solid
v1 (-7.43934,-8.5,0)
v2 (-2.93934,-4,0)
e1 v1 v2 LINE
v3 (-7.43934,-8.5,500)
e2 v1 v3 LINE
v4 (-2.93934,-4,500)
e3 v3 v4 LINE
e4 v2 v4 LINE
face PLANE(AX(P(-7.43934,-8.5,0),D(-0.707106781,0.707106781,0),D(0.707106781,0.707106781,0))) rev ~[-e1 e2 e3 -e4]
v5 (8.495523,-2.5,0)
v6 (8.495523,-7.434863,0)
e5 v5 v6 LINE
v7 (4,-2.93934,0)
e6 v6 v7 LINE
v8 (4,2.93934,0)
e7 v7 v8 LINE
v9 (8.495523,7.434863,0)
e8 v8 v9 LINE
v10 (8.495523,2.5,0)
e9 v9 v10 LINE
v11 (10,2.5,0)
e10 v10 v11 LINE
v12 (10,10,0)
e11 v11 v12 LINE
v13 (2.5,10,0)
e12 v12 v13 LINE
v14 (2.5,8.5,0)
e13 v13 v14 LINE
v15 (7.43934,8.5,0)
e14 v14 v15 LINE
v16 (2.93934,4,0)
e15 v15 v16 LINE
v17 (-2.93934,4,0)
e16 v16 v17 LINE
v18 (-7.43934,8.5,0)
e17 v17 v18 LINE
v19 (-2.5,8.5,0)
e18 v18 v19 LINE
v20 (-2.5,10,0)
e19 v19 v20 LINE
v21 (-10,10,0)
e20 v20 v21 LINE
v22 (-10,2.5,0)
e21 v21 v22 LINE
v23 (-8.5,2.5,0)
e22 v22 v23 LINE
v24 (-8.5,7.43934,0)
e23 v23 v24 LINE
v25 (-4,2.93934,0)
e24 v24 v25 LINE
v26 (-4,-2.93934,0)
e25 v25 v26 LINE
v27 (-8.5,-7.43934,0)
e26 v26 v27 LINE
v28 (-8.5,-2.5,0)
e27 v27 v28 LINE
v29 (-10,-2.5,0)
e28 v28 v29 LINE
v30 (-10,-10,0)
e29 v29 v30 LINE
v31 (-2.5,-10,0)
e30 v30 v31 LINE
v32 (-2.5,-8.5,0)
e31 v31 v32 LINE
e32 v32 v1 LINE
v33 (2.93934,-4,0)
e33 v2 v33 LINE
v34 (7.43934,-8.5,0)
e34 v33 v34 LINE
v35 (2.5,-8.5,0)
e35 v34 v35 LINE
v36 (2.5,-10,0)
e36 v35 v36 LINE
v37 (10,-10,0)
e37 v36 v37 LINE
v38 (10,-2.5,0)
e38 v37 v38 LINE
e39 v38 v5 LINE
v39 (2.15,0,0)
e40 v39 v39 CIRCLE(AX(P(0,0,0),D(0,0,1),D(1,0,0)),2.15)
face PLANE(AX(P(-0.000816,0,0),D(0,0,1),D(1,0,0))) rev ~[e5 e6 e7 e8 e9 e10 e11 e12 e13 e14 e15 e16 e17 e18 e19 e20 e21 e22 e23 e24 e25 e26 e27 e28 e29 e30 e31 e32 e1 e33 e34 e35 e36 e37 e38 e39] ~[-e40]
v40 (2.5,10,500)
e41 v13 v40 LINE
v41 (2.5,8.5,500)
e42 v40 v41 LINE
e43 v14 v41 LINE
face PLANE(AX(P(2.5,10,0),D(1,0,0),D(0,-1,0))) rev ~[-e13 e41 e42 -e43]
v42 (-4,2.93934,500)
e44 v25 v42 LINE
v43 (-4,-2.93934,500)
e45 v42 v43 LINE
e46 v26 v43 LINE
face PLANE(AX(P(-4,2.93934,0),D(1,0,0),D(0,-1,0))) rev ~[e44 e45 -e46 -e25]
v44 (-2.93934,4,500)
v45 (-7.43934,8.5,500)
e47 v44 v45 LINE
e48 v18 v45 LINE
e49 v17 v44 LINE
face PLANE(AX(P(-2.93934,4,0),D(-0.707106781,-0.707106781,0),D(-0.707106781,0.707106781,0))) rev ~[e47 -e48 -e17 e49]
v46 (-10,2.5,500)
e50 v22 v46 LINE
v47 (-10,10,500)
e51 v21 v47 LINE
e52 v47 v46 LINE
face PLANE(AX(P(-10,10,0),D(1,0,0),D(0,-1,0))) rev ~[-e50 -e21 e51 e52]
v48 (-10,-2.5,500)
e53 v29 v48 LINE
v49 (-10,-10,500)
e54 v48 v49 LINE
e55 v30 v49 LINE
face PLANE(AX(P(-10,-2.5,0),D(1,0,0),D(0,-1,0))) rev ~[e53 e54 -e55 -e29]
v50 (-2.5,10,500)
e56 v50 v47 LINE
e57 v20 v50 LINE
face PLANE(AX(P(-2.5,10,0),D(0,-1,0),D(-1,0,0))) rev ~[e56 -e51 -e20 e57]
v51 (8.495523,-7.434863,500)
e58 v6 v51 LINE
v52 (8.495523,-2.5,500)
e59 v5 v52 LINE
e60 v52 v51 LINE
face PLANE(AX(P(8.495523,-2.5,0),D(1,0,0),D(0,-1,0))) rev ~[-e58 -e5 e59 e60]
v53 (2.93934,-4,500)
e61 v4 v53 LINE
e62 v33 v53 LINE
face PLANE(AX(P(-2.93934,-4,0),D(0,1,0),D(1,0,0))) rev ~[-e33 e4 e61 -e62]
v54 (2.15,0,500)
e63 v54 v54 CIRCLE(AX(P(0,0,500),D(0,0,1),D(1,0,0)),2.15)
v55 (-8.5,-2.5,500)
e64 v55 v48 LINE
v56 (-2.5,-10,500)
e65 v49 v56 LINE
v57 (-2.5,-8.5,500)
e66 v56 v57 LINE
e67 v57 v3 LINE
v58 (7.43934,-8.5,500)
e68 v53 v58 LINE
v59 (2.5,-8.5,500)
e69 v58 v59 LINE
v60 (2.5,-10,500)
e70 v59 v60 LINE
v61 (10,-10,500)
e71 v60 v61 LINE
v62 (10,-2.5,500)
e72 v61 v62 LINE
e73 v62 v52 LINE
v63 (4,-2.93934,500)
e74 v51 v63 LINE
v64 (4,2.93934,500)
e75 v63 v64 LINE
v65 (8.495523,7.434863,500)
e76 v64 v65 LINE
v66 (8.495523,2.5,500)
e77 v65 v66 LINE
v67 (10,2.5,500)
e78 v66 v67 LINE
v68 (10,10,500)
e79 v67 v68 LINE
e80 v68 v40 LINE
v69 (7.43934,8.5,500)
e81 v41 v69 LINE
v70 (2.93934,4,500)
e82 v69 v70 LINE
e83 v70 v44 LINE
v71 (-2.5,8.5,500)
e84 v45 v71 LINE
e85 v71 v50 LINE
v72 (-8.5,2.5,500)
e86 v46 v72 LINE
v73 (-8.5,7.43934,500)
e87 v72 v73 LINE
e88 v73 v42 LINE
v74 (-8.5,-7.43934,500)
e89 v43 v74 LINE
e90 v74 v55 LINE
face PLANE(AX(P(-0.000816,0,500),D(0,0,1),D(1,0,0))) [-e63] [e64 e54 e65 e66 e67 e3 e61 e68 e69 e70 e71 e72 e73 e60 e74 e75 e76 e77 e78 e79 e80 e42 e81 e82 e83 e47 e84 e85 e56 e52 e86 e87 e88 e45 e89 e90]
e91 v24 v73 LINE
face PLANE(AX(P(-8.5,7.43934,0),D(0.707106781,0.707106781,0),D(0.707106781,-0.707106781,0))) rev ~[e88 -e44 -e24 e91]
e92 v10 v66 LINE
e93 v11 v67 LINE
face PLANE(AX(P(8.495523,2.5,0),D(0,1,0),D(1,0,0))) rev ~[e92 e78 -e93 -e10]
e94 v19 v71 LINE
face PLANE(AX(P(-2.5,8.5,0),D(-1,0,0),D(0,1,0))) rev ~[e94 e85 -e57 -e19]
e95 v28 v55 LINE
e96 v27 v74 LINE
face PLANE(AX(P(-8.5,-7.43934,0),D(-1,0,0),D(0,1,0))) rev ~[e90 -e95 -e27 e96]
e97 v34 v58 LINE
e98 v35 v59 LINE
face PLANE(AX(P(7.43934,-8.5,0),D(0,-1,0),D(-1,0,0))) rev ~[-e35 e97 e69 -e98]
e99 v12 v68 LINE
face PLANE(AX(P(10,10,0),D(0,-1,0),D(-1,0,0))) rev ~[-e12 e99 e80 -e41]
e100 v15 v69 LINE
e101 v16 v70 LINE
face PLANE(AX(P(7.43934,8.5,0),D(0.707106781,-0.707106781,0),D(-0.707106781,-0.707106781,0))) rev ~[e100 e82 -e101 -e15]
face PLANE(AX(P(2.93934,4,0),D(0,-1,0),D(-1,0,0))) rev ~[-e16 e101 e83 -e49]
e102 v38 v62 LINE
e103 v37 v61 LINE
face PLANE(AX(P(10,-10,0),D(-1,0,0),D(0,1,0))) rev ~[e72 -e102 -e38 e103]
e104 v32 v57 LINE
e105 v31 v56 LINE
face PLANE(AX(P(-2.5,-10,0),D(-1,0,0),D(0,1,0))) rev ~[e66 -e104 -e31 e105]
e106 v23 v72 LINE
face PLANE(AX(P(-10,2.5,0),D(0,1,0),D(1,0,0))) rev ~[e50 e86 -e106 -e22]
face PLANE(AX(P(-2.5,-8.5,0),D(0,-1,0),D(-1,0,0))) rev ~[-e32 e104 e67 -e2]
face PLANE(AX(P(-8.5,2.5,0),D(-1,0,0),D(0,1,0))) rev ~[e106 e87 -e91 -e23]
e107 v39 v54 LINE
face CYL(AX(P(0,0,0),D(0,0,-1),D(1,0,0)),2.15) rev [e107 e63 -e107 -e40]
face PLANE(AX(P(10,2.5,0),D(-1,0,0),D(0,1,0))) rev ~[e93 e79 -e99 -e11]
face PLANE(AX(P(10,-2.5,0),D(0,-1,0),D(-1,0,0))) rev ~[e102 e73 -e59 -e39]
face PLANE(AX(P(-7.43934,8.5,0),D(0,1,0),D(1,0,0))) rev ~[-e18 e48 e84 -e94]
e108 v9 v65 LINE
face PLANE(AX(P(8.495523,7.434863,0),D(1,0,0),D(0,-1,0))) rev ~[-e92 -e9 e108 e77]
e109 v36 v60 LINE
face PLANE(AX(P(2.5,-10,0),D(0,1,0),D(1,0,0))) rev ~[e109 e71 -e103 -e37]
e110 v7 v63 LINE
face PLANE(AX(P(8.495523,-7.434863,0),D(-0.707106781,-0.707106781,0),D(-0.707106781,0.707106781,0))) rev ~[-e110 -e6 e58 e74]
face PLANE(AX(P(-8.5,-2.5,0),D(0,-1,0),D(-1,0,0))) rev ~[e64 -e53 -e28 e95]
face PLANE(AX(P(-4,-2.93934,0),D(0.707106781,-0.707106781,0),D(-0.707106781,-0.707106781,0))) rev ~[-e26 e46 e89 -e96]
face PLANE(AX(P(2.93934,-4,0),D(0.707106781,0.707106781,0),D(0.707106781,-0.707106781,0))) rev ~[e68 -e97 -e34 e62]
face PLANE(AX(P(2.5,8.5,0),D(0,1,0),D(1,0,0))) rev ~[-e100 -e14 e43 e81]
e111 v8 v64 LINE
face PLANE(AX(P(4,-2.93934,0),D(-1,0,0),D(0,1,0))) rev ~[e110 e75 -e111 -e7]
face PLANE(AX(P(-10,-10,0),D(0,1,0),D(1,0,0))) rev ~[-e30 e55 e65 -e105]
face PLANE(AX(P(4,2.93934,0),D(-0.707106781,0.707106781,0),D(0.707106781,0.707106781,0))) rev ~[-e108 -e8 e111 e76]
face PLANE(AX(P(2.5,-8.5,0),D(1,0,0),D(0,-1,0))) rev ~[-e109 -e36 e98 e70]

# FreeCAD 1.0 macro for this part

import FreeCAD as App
import Part
import Sketcher

V = App.Vector
Q = App.Units.Quantity

doc = App.newDocument("Part")
params = doc.addObject("Spreadsheet::Sheet", "Params")
for row, (alias, value) in enumerate([
    ("sketch1_diameter", "4.3 mm"),
    ("sketch1_width", "7.5 mm"),
    ("sketch1_width2", "1.5 mm"),
    ("pad1_length", "500 mm"),
], start=1):
    params.set(f"A{row}", alias)
    params.set(f"B{row}", "=" + value)
    params.setAlias(f"B{row}", alias)

body = doc.addObject("PartDesign::Body", "Body")

# Sketch on XY plane
sketch1 = body.newObject("Sketcher::SketchObject", "Sketch")
sketch1.AttachmentSupport = (doc.getObject("XY_Plane"), [""])
sketch1.MapMode = "FlatFace"
sketch1.addGeometry([
    Part.LineSegment(V(-10, -2.5, 0), V(-10, -10, 0)),  # 0
    Part.LineSegment(V(-10, -10, 0), V(-2.5, -10, 0)),  # 1
    Part.LineSegment(V(-2.5, -10, 0), V(-2.5, -8.5, 0)),  # 2
    Part.LineSegment(V(-2.5, -8.5, 0), V(-7.4, -8.5, 0)),  # 3
    Part.LineSegment(V(-7.4, -8.5, 0), V(-2.9, -4, 0)),  # 4
    Part.LineSegment(V(-2.9, -4, 0), V(2.9, -4, 0)),  # 5
    Part.LineSegment(V(2.9, -4, 0), V(7.4, -8.5, 0)),  # 6
    Part.LineSegment(V(7.4, -8.5, 0), V(2.5, -8.5, 0)),  # 7
    Part.LineSegment(V(2.5, -8.5, 0), V(2.5, -10, 0)),  # 8
    Part.LineSegment(V(2.5, -10, 0), V(10, -10, 0)),  # 9
    Part.LineSegment(V(10, -10, 0), V(10, -2.5, 0)),  # 10
    Part.LineSegment(V(10, -2.5, 0), V(8.5, -2.5, 0)),  # 11
    Part.LineSegment(V(8.5, -2.5, 0), V(8.5, -7.4, 0)),  # 12
    Part.LineSegment(V(8.5, -7.4, 0), V(4, -2.9, 0)),  # 13
    Part.LineSegment(V(4, -2.9, 0), V(4, 2.9, 0)),  # 14
    Part.LineSegment(V(4, 2.9, 0), V(8.5, 7.4, 0)),  # 15
    Part.LineSegment(V(8.5, 7.4, 0), V(8.5, 2.5, 0)),  # 16
    Part.LineSegment(V(8.5, 2.5, 0), V(10, 2.5, 0)),  # 17
    Part.LineSegment(V(10, 2.5, 0), V(10, 10, 0)),  # 18
    Part.LineSegment(V(10, 10, 0), V(2.5, 10, 0)),  # 19
    Part.LineSegment(V(2.5, 10, 0), V(2.5, 8.5, 0)),  # 20
    Part.LineSegment(V(2.5, 8.5, 0), V(7.4, 8.5, 0)),  # 21
    Part.LineSegment(V(7.4, 8.5, 0), V(2.9, 4, 0)),  # 22
    Part.LineSegment(V(2.9, 4, 0), V(-2.9, 4, 0)),  # 23
    Part.LineSegment(V(-2.9, 4, 0), V(-7.4, 8.5, 0)),  # 24
    Part.LineSegment(V(-7.4, 8.5, 0), V(-2.5, 8.5, 0)),  # 25
    Part.LineSegment(V(-2.5, 8.5, 0), V(-2.5, 10, 0)),  # 26
    Part.LineSegment(V(-2.5, 10, 0), V(-10, 10, 0)),  # 27
    Part.LineSegment(V(-10, 10, 0), V(-10, 2.5, 0)),  # 28
    Part.LineSegment(V(-10, 2.5, 0), V(-8.5, 2.5, 0)),  # 29
    Part.LineSegment(V(-8.5, 2.5, 0), V(-8.5, 7.4, 0)),  # 30
    Part.LineSegment(V(-8.5, 7.4, 0), V(-4, 2.9, 0)),  # 31
    Part.LineSegment(V(-4, 2.9, 0), V(-4, -2.9, 0)),  # 32
    Part.LineSegment(V(-4, -2.9, 0), V(-8.5, -7.4, 0)),  # 33
    Part.LineSegment(V(-8.5, -7.4, 0), V(-8.5, -2.5, 0)),  # 34
    Part.LineSegment(V(-8.5, -2.5, 0), V(-10, -2.5, 0)),  # 35
    Part.Circle(V(0, 0, 0), V(0, 0, 1), 2.1),  # 36
], False)
sketch1.addConstraint([
    Sketcher.Constraint("Coincident", 0, 2, 1, 1),
    Sketcher.Constraint("Coincident", 1, 2, 2, 1),
    Sketcher.Constraint("Coincident", 2, 2, 3, 1),
    Sketcher.Constraint("Coincident", 3, 2, 4, 1),
    Sketcher.Constraint("Coincident", 4, 2, 5, 1),
    Sketcher.Constraint("Coincident", 5, 2, 6, 1),
    Sketcher.Constraint("Coincident", 6, 2, 7, 1),
    Sketcher.Constraint("Coincident", 7, 2, 8, 1),
    Sketcher.Constraint("Coincident", 8, 2, 9, 1),
    Sketcher.Constraint("Coincident", 9, 2, 10, 1),
    Sketcher.Constraint("Coincident", 10, 2, 11, 1),
    Sketcher.Constraint("Coincident", 11, 2, 12, 1),
    Sketcher.Constraint("Coincident", 12, 2, 13, 1),
    Sketcher.Constraint("Coincident", 13, 2, 14, 1),
    Sketcher.Constraint("Coincident", 14, 2, 15, 1),
    Sketcher.Constraint("Coincident", 15, 2, 16, 1),
    Sketcher.Constraint("Coincident", 16, 2, 17, 1),
    Sketcher.Constraint("Coincident", 17, 2, 18, 1),
    Sketcher.Constraint("Coincident", 18, 2, 19, 1),
    Sketcher.Constraint("Coincident", 19, 2, 20, 1),
    Sketcher.Constraint("Coincident", 20, 2, 21, 1),
    Sketcher.Constraint("Coincident", 21, 2, 22, 1),
    Sketcher.Constraint("Coincident", 22, 2, 23, 1),
    Sketcher.Constraint("Coincident", 23, 2, 24, 1),
    Sketcher.Constraint("Coincident", 24, 2, 25, 1),
    Sketcher.Constraint("Coincident", 25, 2, 26, 1),
    Sketcher.Constraint("Coincident", 26, 2, 27, 1),
    Sketcher.Constraint("Coincident", 27, 2, 28, 1),
    Sketcher.Constraint("Coincident", 28, 2, 29, 1),
    Sketcher.Constraint("Coincident", 29, 2, 30, 1),
    Sketcher.Constraint("Coincident", 30, 2, 31, 1),
    Sketcher.Constraint("Coincident", 31, 2, 32, 1),
    Sketcher.Constraint("Coincident", 32, 2, 33, 1),
    Sketcher.Constraint("Coincident", 33, 2, 34, 1),
    Sketcher.Constraint("Coincident", 34, 2, 35, 1),
    Sketcher.Constraint("Coincident", 35, 2, 0, 1),
    Sketcher.Constraint("Vertical", 0),
    Sketcher.Constraint("Horizontal", 1),
    Sketcher.Constraint("Vertical", 2),
    Sketcher.Constraint("Horizontal", 3),
    Sketcher.Constraint("Horizontal", 5),
    Sketcher.Constraint("Horizontal", 7),
    Sketcher.Constraint("Vertical", 8),
    Sketcher.Constraint("Horizontal", 9),
    Sketcher.Constraint("Vertical", 10),
    Sketcher.Constraint("Horizontal", 11),
    Sketcher.Constraint("Vertical", 12),
    Sketcher.Constraint("Vertical", 14),
    Sketcher.Constraint("Vertical", 16),
    Sketcher.Constraint("Horizontal", 17),
    Sketcher.Constraint("Vertical", 18),
    Sketcher.Constraint("Horizontal", 19),
    Sketcher.Constraint("Vertical", 20),
    Sketcher.Constraint("Horizontal", 21),
    Sketcher.Constraint("Horizontal", 23),
    Sketcher.Constraint("Horizontal", 25),
    Sketcher.Constraint("Vertical", 26),
    Sketcher.Constraint("Horizontal", 27),
    Sketcher.Constraint("Vertical", 28),
    Sketcher.Constraint("Horizontal", 29),
    Sketcher.Constraint("Vertical", 30),
    Sketcher.Constraint("Vertical", 32),
    Sketcher.Constraint("Vertical", 34),
    Sketcher.Constraint("Horizontal", 35),
    Sketcher.Constraint("Coincident", 36, 3, -1, 1),
    Sketcher.Constraint("Symmetric", 0, 2, 18, 2, -1, 1),
    Sketcher.Constraint("Symmetric", 2, 2, 20, 2, -1, 1),
    Sketcher.Constraint("Symmetric", 4, 2, 22, 2, -1, 1),
    Sketcher.Constraint("Symmetric", 6, 2, 24, 2, -1, 1),
    Sketcher.Constraint("Symmetric", 8, 2, 26, 2, -1, 1),
    Sketcher.Constraint("Symmetric", 10, 2, 28, 2, -1, 1),
    Sketcher.Constraint("Symmetric", 13, 2, 31, 2, -1, 1),
    Sketcher.Constraint("Symmetric", 3, 2, 6, 2, -2),
    Sketcher.Constraint("Symmetric", 1, 2, 8, 2, -2),
    Sketcher.Constraint("Symmetric", 17, 2, 28, 2, -2),
    Sketcher.Constraint("Symmetric", 12, 2, 15, 2, -1),
    Sketcher.Constraint("Symmetric", 30, 2, 33, 2, -1),
    Sketcher.Constraint("Perpendicular", 4, 6),
    Sketcher.Constraint("Parallel", 6, 13),
    Sketcher.Constraint("Perpendicular", 13, 15),
    Sketcher.Constraint("Parallel", 15, 22),
    Sketcher.Constraint("Perpendicular", 22, 24),
    Sketcher.Constraint("Parallel", 24, 31),
    Sketcher.Constraint("Perpendicular", 31, 33),
    Sketcher.Constraint("Horizontal", 14, 2, 31, 2),
    Sketcher.Constraint("Horizontal", 11, 2, 34, 2),
    Sketcher.Constraint("Equal", 27, 0),
    Sketcher.Constraint("Equal", 35, 2),
    Sketcher.Constraint("Equal", 23, 14),
    Sketcher.Constraint("Equal", 25, 30),
    Sketcher.Constraint("Equal", 24, 31),
    Sketcher.Constraint("Diameter", 36, Q("4.3 mm")),
    Sketcher.Constraint("DistanceX", 1, 1, 1, 2, Q("7.5 mm")),
    Sketcher.Constraint("DistanceX", 29, 1, 29, 2, Q("1.5 mm")),
    Sketcher.Constraint("DistanceX", 0, 2, -1, 1, Q("10 mm")),
    Sketcher.Constraint("DistanceY", 4, 2, -1, 1, Q("4 mm")),
    Sketcher.Constraint("DistanceX", 3, 2, 3, 1, Q("4.93934 mm")),
    Sketcher.Constraint("Distance", 13, Q("6.35763 mm")),
])
sketch1.setExpression("Constraints[91]", "Params.sketch1_diameter")
sketch1.setExpression("Constraints[92]", "Params.sketch1_width")
sketch1.setExpression("Constraints[93]", "Params.sketch1_width2")
pad1 = body.newObject("PartDesign::Pad", "Pad")
pad1.Profile = sketch1
pad1.setExpression("Length", "Params.pad1_length")

doc.recompute()
